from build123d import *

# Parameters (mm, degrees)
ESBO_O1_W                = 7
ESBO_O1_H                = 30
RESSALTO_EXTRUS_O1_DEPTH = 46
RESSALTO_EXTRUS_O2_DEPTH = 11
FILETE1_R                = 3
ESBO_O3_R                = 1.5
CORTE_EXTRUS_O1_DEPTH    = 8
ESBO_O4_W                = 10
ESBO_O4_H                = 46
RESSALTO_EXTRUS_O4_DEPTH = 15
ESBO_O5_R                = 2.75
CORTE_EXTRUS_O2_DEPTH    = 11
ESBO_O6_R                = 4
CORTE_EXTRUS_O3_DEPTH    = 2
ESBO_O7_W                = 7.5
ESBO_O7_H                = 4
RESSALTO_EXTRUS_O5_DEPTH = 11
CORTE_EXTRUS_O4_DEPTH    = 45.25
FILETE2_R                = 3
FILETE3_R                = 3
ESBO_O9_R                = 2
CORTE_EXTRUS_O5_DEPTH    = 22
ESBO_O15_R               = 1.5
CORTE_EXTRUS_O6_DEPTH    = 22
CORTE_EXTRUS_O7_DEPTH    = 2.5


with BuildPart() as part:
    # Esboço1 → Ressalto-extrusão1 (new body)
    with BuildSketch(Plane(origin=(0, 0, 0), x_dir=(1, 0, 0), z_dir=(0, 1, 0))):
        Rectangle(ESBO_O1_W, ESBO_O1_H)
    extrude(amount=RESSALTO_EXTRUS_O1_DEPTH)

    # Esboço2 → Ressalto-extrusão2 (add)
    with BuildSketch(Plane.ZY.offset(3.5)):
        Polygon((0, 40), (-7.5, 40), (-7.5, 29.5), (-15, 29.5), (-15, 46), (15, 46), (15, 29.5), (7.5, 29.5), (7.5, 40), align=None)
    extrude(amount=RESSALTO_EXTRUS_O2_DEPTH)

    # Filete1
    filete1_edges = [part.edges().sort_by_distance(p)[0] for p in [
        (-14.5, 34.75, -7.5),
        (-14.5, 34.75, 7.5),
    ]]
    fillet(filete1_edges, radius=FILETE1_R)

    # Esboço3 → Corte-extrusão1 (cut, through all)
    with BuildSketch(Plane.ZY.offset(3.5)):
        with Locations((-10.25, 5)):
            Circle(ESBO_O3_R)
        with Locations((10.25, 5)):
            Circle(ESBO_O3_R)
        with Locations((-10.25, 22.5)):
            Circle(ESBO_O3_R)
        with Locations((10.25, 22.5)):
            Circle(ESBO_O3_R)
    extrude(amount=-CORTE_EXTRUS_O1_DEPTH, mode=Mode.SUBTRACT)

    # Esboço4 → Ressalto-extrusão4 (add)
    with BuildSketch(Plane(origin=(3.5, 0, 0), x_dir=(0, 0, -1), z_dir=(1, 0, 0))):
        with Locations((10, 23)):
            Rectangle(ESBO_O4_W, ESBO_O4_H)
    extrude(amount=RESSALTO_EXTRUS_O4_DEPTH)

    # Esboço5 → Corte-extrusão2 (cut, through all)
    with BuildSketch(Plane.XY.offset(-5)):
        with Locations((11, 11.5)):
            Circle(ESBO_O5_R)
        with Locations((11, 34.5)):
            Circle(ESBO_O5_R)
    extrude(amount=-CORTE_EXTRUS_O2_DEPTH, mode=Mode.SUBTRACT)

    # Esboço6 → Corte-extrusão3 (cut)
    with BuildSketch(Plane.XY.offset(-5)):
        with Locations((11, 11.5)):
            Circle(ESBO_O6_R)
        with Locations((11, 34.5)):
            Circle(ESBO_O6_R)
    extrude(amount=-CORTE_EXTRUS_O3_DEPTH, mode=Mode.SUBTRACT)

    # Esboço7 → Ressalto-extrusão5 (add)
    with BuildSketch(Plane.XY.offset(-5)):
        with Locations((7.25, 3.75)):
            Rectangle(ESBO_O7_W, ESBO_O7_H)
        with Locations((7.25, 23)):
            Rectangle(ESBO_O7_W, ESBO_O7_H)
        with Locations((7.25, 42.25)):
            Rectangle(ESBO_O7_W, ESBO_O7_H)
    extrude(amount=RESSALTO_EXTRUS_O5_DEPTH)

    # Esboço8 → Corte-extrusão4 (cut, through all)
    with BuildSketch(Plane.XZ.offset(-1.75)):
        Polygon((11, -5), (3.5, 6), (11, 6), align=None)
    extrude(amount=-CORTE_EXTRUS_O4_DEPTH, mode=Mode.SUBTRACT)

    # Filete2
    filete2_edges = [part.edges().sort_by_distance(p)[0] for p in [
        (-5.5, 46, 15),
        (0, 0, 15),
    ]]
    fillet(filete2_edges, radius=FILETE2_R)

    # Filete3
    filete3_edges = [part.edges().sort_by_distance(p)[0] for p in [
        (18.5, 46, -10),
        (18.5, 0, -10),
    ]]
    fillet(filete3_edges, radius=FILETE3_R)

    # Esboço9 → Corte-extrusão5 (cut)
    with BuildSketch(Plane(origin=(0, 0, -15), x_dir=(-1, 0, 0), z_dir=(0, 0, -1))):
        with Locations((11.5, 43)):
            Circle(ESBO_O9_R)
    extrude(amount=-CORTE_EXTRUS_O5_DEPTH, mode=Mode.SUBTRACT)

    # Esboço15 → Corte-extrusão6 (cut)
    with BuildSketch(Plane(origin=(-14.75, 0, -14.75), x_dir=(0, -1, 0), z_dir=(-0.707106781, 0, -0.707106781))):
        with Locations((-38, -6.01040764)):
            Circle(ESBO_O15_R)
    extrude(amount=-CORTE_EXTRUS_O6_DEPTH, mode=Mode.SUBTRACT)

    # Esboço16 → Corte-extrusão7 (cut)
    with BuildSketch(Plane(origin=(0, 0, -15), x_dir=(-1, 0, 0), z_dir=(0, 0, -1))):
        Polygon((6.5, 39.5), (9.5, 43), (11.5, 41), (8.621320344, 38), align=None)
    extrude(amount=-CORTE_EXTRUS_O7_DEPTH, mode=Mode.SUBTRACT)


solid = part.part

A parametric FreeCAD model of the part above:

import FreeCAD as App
import Part
import Sketcher
from FreeCAD import Vector
Q = App.Units.Quantity


def edges_at(feature, points):
    """Names of the edges that pass closest to the given points."""
    edges = feature.Shape.Edges
    near = lambda p: min(range(len(edges)), key=lambda i: edges[i].distToShape(Part.Vertex(*p))[0])
    return sorted({f"Edge{near(p) + 1}" for p in points})

doc = App.newDocument("Part")
body = doc.addObject("PartDesign::Body", "Body")

# Sketch on XZ plane
sketch1 = doc.addObject("Sketcher::SketchObject", "Sketch")
body.addObject(sketch1)
sketch1.AttachmentSupport = (doc.XZ_Plane, [""])
sketch1.MapMode = "FlatFace"
sketch1.addGeometry(Part.LineSegment(Vector(-4, -15, 0), Vector(-4, 15, 0)), False)
sketch1.addGeometry(Part.LineSegment(Vector(-4, 15, 0), Vector(4, 15, 0)), False)
sketch1.addGeometry(Part.LineSegment(Vector(4, 15, 0), Vector(4, -15, 0)), False)
sketch1.addGeometry(Part.LineSegment(Vector(4, -15, 0), Vector(-4, -15, 0)), False)
sketch1.addConstraint(Sketcher.Constraint("Coincident", 0, 2, 1, 1))
sketch1.addConstraint(Sketcher.Constraint("Coincident", 1, 2, 2, 1))
sketch1.addConstraint(Sketcher.Constraint("Coincident", 2, 2, 3, 1))
sketch1.addConstraint(Sketcher.Constraint("Coincident", 3, 2, 0, 1))
sketch1.addConstraint(Sketcher.Constraint("Vertical", 0))
sketch1.addConstraint(Sketcher.Constraint("Horizontal", 1))
sketch1.addConstraint(Sketcher.Constraint("Vertical", 2))
sketch1.addConstraint(Sketcher.Constraint("Horizontal", 3))
sketch1.addConstraint(Sketcher.Constraint("Symmetric", 0, 2, 2, 2, -1, 1))
sketch1.addConstraint(Sketcher.Constraint("DistanceX", 1, 1, 1, 2, 7.0))
sketch1.addConstraint(Sketcher.Constraint("DistanceY", 0, 1, 0, 2, 30.0))
pad1 = doc.addObject("PartDesign::Pad", "Pad")
body.addObject(pad1)
pad1.Profile = sketch1
pad1.Length = 46
pad1.Reversed = True

# Sketch on YZ plane
sketch2 = doc.addObject("Sketcher::SketchObject", "Sketch001")
body.addObject(sketch2)
sketch2.AttachmentSupport = (doc.YZ_Plane, [""])
sketch2.MapMode = "FlatFace"
sketch2.AttachmentOffset = App.Placement(Vector(0, 0, -3.5), App.Rotation())
sketch2.addGeometry(Part.LineSegment(Vector(40, -8, 0), Vector(40, 8, 0)), False)
sketch2.addGeometry(Part.LineSegment(Vector(40, 8, 0), Vector(30, 8, 0)), False)
sketch2.addGeometry(Part.LineSegment(Vector(30, 8, 0), Vector(30, 15, 0)), False)
sketch2.addGeometry(Part.LineSegment(Vector(30, 15, 0), Vector(46, 15, 0)), False)
sketch2.addGeometry(Part.LineSegment(Vector(46, 15, 0), Vector(46, -15, 0)), False)
sketch2.addGeometry(Part.LineSegment(Vector(46, -15, 0), Vector(30, -15, 0)), False)
sketch2.addGeometry(Part.LineSegment(Vector(30, -15, 0), Vector(30, -8, 0)), False)
sketch2.addGeometry(Part.LineSegment(Vector(30, -8, 0), Vector(40, -8, 0)), False)
sketch2.addConstraint(Sketcher.Constraint("Coincident", 0, 2, 1, 1))
sketch2.addConstraint(Sketcher.Constraint("Coincident", 1, 2, 2, 1))
sketch2.addConstraint(Sketcher.Constraint("Coincident", 2, 2, 3, 1))
sketch2.addConstraint(Sketcher.Constraint("Coincident", 3, 2, 4, 1))
sketch2.addConstraint(Sketcher.Constraint("Coincident", 4, 2, 5, 1))
sketch2.addConstraint(Sketcher.Constraint("Coincident", 5, 2, 6, 1))
sketch2.addConstraint(Sketcher.Constraint("Coincident", 6, 2, 7, 1))
sketch2.addConstraint(Sketcher.Constraint("Coincident", 7, 2, 0, 1))
sketch2.addConstraint(Sketcher.Constraint("Vertical", 0))
sketch2.addConstraint(Sketcher.Constraint("Horizontal", 1))
sketch2.addConstraint(Sketcher.Constraint("Vertical", 2))
sketch2.addConstraint(Sketcher.Constraint("Horizontal", 3))
sketch2.addConstraint(Sketcher.Constraint("Vertical", 4))
sketch2.addConstraint(Sketcher.Constraint("Horizontal", 5))
sketch2.addConstraint(Sketcher.Constraint("Vertical", 6))
sketch2.addConstraint(Sketcher.Constraint("Horizontal", 7))
sketch2.addConstraint(Sketcher.Constraint("Symmetric", 2, 2, 5, 2, -1))
sketch2.addConstraint(Sketcher.Constraint("Equal", 2, 6))
sketch2.addConstraint(Sketcher.Constraint("DistanceY", 0, 1, 0, 2, 15.0))
sketch2.addConstraint(Sketcher.Constraint("DistanceY", 4, 2, 4, 1, 30.0))
sketch2.addConstraint(Sketcher.Constraint("DistanceX", 1, 2, 1, 1, 10.5))
sketch2.addConstraint(Sketcher.Constraint("DistanceX", 3, 1, 3, 2, 16.5))
sketch2.addConstraint(Sketcher.Constraint("DistanceX", -1, 1, 0, 2, 40.0))
pad2 = doc.addObject("PartDesign::Pad", "Pad001")
body.addObject(pad2)
pad2.Profile = sketch2
pad2.Length = 11
pad2.Reversed = True
doc.recompute()

fillet = doc.addObject("PartDesign::Fillet", "Fillet")
body.addObject(fillet)
fillet.Base = (pad2, edges_at(pad2, [(-14.5, 34.75, -7.5), (-14.5, 34.75, 7.5)]))
fillet.Radius = 3

# Sketch on YZ plane
sketch3 = doc.addObject("Sketcher::SketchObject", "Sketch002")
body.addObject(sketch3)
sketch3.AttachmentSupport = (doc.YZ_Plane, [""])
sketch3.MapMode = "FlatFace"
sketch3.AttachmentOffset = App.Placement(Vector(0, 0, -3.5), App.Rotation())
sketch3.addGeometry(Part.Circle(Vector(5, -10.2, 0), Vector(0, 0, 1), 1.5), False)
sketch3.addGeometry(Part.Circle(Vector(5, 10.2, 0), Vector(0, 0, 1), 1.5), False)
sketch3.addGeometry(Part.Circle(Vector(22.5, -10.2, 0), Vector(0, 0, 1), 1.5), False)
sketch3.addGeometry(Part.Circle(Vector(22.5, 10.2, 0), Vector(0, 0, 1), 1.5), False)
sketch3.addConstraint(Sketcher.Constraint("Equal", 0, 1))
sketch3.addConstraint(Sketcher.Constraint("Equal", 1, 2))
sketch3.addConstraint(Sketcher.Constraint("Equal", 2, 3))
sketch3.addConstraint(Sketcher.Constraint("Symmetric", 0, 3, 1, 3, -1))
sketch3.addConstraint(Sketcher.Constraint("Symmetric", 2, 3, 3, 3, -1))
sketch3.addConstraint(Sketcher.Constraint("Horizontal", 0, 3, 2, 3))
sketch3.addConstraint(Sketcher.Constraint("Diameter", 0, 3.0))
sketch3.addConstraint(Sketcher.Constraint("DistanceX", -1, 1, 0, 3, 5.0))
sketch3.addConstraint(Sketcher.Constraint("DistanceX", -1, 1, 2, 3, 22.5))
sketch3.addConstraint(Sketcher.Constraint("DistanceY", 0, 3, 1, 3, 20.5))
pocket1 = doc.addObject("PartDesign::Pocket", "Pocket")
body.addObject(pocket1)
pocket1.Profile = sketch3
pocket1.Type = "ThroughAll"
pocket1.Reversed = True

# Sketch on YZ plane
sketch4 = doc.addObject("Sketcher::SketchObject", "Sketch003")
body.addObject(sketch4)
sketch4.AttachmentSupport = (doc.YZ_Plane, [""])
sketch4.MapMode = "FlatFace"
sketch4.AttachmentOffset = App.Placement(Vector(0, 0, 3.5), App.Rotation())
sketch4.addGeometry(Part.LineSegment(Vector(46, -5, 0), Vector(0, -5, 0)), False)
sketch4.addGeometry(Part.LineSegment(Vector(0, -5, 0), Vector(0, -15, 0)), False)
sketch4.addGeometry(Part.LineSegment(Vector(0, -15, 0), Vector(46, -15, 0)), False)
sketch4.addGeometry(Part.LineSegment(Vector(46, -15, 0), Vector(46, -5, 0)), False)
sketch4.addConstraint(Sketcher.Constraint("Coincident", 0, 2, 1, 1))
sketch4.addConstraint(Sketcher.Constraint("Coincident", 1, 2, 2, 1))
sketch4.addConstraint(Sketcher.Constraint("Coincident", 2, 2, 3, 1))
sketch4.addConstraint(Sketcher.Constraint("Coincident", 3, 2, 0, 1))
sketch4.addConstraint(Sketcher.Constraint("Horizontal", 0))
sketch4.addConstraint(Sketcher.Constraint("Vertical", 1))
sketch4.addConstraint(Sketcher.Constraint("Horizontal", 2))
sketch4.addConstraint(Sketcher.Constraint("Vertical", 3))
sketch4.addConstraint(Sketcher.Constraint("PointOnObject", 0, 2, -2))
sketch4.addConstraint(Sketcher.Constraint("DistanceX", 0, 2, 0, 1, 46.0))
sketch4.addConstraint(Sketcher.Constraint("DistanceY", 1, 2, 1, 1, 10.0))
sketch4.addConstraint(Sketcher.Constraint("DistanceY", 0, 2, -1, 1, 5.0))
pad3 = doc.addObject("PartDesign::Pad", "Pad002")
body.addObject(pad3)
pad3.Profile = sketch4
pad3.Length = 15

# Sketch on XY plane
sketch5 = doc.addObject("Sketcher::SketchObject", "Sketch004")
body.addObject(sketch5)
sketch5.AttachmentSupport = (doc.XY_Plane, [""])
sketch5.MapMode = "FlatFace"
sketch5.AttachmentOffset = App.Placement(Vector(0, 0, -5), App.Rotation())
sketch5.addGeometry(Part.Circle(Vector(11, 11.5, 0), Vector(0, 0, 1), 2.8), False)
sketch5.addGeometry(Part.Circle(Vector(11, 34.5, 0), Vector(0, 0, 1), 2.8), False)
sketch5.addConstraint(Sketcher.Constraint("Equal", 0, 1))
sketch5.addConstraint(Sketcher.Constraint("Vertical", 0, 3, 1, 3))
sketch5.addConstraint(Sketcher.Constraint("Diameter", 0, 5.5))
sketch5.addConstraint(Sketcher.Constraint("DistanceX", -1, 1, 0, 3, 11.0))
sketch5.addConstraint(Sketcher.Constraint("DistanceY", 0, 3, 1, 3, 23.0))
sketch5.addConstraint(Sketcher.Constraint("DistanceY", -1, 1, 0, 3, 11.5))
pocket2 = doc.addObject("PartDesign::Pocket", "Pocket001")
body.addObject(pocket2)
pocket2.Profile = sketch5
pocket2.Type = "ThroughAll"

# Sketch on XY plane
sketch6 = doc.addObject("Sketcher::SketchObject", "Sketch005")
body.addObject(sketch6)
sketch6.AttachmentSupport = (doc.XY_Plane, [""])
sketch6.MapMode = "FlatFace"
sketch6.AttachmentOffset = App.Placement(Vector(0, 0, -5), App.Rotation())
sketch6.addGeometry(Part.Circle(Vector(11, 11.5, 0), Vector(0, 0, 1), 4), False)
sketch6.addGeometry(Part.Circle(Vector(11, 34.5, 0), Vector(0, 0, 1), 4), False)
sketch6.addConstraint(Sketcher.Constraint("Equal", 0, 1))
sketch6.addConstraint(Sketcher.Constraint("Vertical", 0, 3, 1, 3))
sketch6.addConstraint(Sketcher.Constraint("Diameter", 0, 8.0))
sketch6.addConstraint(Sketcher.Constraint("DistanceX", -1, 1, 0, 3, 11.0))
sketch6.addConstraint(Sketcher.Constraint("DistanceY", 0, 3, 1, 3, 23.0))
sketch6.addConstraint(Sketcher.Constraint("DistanceY", -1, 1, 0, 3, 11.5))
pocket3 = doc.addObject("PartDesign::Pocket", "Pocket002")
body.addObject(pocket3)
pocket3.Profile = sketch6
pocket3.Length = 2

# Sketch on XY plane
sketch7 = doc.addObject("Sketcher::SketchObject", "Sketch006")
body.addObject(sketch7)
sketch7.AttachmentSupport = (doc.XY_Plane, [""])
sketch7.MapMode = "FlatFace"
sketch7.AttachmentOffset = App.Placement(Vector(0, 0, -5), App.Rotation())
sketch7.addGeometry(Part.LineSegment(Vector(3.5, 5.8, 0), Vector(3.5, 1.8, 0)), False)
sketch7.addGeometry(Part.LineSegment(Vector(3.5, 1.8, 0), Vector(11, 1.8, 0)), False)
sketch7.addGeometry(Part.LineSegment(Vector(11, 1.8, 0), Vector(11, 5.8, 0)), False)
sketch7.addGeometry(Part.LineSegment(Vector(11, 5.8, 0), Vector(3.5, 5.8, 0)), False)
sketch7.addGeometry(Part.LineSegment(Vector(3.5, 25, 0), Vector(3.5, 21, 0)), False)
sketch7.addGeometry(Part.LineSegment(Vector(3.5, 21, 0), Vector(11, 21, 0)), False)
sketch7.addGeometry(Part.LineSegment(Vector(11, 21, 0), Vector(11, 25, 0)), False)
sketch7.addGeometry(Part.LineSegment(Vector(11, 25, 0), Vector(3.5, 25, 0)), False)
sketch7.addGeometry(Part.LineSegment(Vector(3.5, 44.2, 0), Vector(3.5, 40.2, 0)), False)
sketch7.addGeometry(Part.LineSegment(Vector(3.5, 40.2, 0), Vector(11, 40.2, 0)), False)
sketch7.addGeometry(Part.LineSegment(Vector(11, 40.2, 0), Vector(11, 44.2, 0)), False)
sketch7.addGeometry(Part.LineSegment(Vector(11, 44.2, 0), Vector(3.5, 44.2, 0)), False)
sketch7.addConstraint(Sketcher.Constraint("Coincident", 0, 2, 1, 1))
sketch7.addConstraint(Sketcher.Constraint("Coincident", 1, 2, 2, 1))
sketch7.addConstraint(Sketcher.Constraint("Coincident", 2, 2, 3, 1))
sketch7.addConstraint(Sketcher.Constraint("Coincident", 3, 2, 0, 1))
sketch7.addConstraint(Sketcher.Constraint("Coincident", 4, 2, 5, 1))
sketch7.addConstraint(Sketcher.Constraint("Coincident", 5, 2, 6, 1))
sketch7.addConstraint(Sketcher.Constraint("Coincident", 6, 2, 7, 1))
sketch7.addConstraint(Sketcher.Constraint("Coincident", 7, 2, 4, 1))
sketch7.addConstraint(Sketcher.Constraint("Coincident", 8, 2, 9, 1))
sketch7.addConstraint(Sketcher.Constraint("Coincident", 9, 2, 10, 1))
sketch7.addConstraint(Sketcher.Constraint("Coincident", 10, 2, 11, 1))
sketch7.addConstraint(Sketcher.Constraint("Coincident", 11, 2, 8, 1))
sketch7.addConstraint(Sketcher.Constraint("Vertical", 0))
sketch7.addConstraint(Sketcher.Constraint("Horizontal", 1))
sketch7.addConstraint(Sketcher.Constraint("Vertical", 2))
sketch7.addConstraint(Sketcher.Constraint("Horizontal", 3))
sketch7.addConstraint(Sketcher.Constraint("Vertical", 4))
sketch7.addConstraint(Sketcher.Constraint("Horizontal", 5))
sketch7.addConstraint(Sketcher.Constraint("Vertical", 6))
sketch7.addConstraint(Sketcher.Constraint("Horizontal", 7))
sketch7.addConstraint(Sketcher.Constraint("Vertical", 8))
sketch7.addConstraint(Sketcher.Constraint("Horizontal", 9))
sketch7.addConstraint(Sketcher.Constraint("Vertical", 10))
sketch7.addConstraint(Sketcher.Constraint("Horizontal", 11))
sketch7.addConstraint(Sketcher.Constraint("Vertical", 3, 2, 4, 2))
sketch7.addConstraint(Sketcher.Constraint("Vertical", 2, 2, 5, 2))
sketch7.addConstraint(Sketcher.Constraint("Vertical", 7, 2, 8, 2))
sketch7.addConstraint(Sketcher.Constraint("Vertical", 6, 2, 9, 2))
sketch7.addConstraint(Sketcher.Constraint("Equal", 2, 4))
sketch7.addConstraint(Sketcher.Constraint("Equal", 6, 8))
sketch7.addConstraint(Sketcher.Constraint("DistanceY", 0, 2, 0, 1, 4.0))
sketch7.addConstraint(Sketcher.Constraint("DistanceX", 1, 1, 1, 2, 7.5))
sketch7.addConstraint(Sketcher.Constraint("DistanceX", -1, 1, 1, 2, 11.0))
sketch7.addConstraint(Sketcher.Constraint("DistanceY", -1, 1, 4, 2, 21.0))
sketch7.addConstraint(Sketcher.Constraint("DistanceY", 3, 2, 8, 2, 34.5))
sketch7.addConstraint(Sketcher.Constraint("DistanceY", -1, 1, 0, 2, 1.75))
pad4 = doc.addObject("PartDesign::Pad", "Pad003")
body.addObject(pad4)
pad4.Profile = sketch7
pad4.Length = 11

# Sketch on XZ plane
sketch8 = doc.addObject("Sketcher::SketchObject", "Sketch007")
body.addObject(sketch8)
sketch8.AttachmentSupport = (doc.XZ_Plane, [""])
sketch8.MapMode = "FlatFace"
sketch8.AttachmentOffset = App.Placement(Vector(0, 0, -1.75), App.Rotation())
sketch8.addGeometry(Part.LineSegment(Vector(4, 6, 0), Vector(11, -5, 0)), False)
sketch8.addGeometry(Part.LineSegment(Vector(11, -5, 0), Vector(11, 6, 0)), False)
sketch8.addGeometry(Part.LineSegment(Vector(11, 6, 0), Vector(4, 6, 0)), False)
sketch8.addConstraint(Sketcher.Constraint("Coincident", 0, 2, 1, 1))
sketch8.addConstraint(Sketcher.Constraint("Coincident", 1, 2, 2, 1))
sketch8.addConstraint(Sketcher.Constraint("Coincident", 2, 2, 0, 1))
sketch8.addConstraint(Sketcher.Constraint("Vertical", 1))
sketch8.addConstraint(Sketcher.Constraint("Horizontal", 2))
sketch8.addConstraint(Sketcher.Constraint("DistanceY", 1, 1, 1, 2, 11.0))
sketch8.addConstraint(Sketcher.Constraint("DistanceX", 2, 2, 2, 1, 7.5))
sketch8.addConstraint(Sketcher.Constraint("DistanceX", -1, 1, 0, 2, 11.0))
sketch8.addConstraint(Sketcher.Constraint("DistanceY", 0, 2, -1, 1, 5.0))
pocket4 = doc.addObject("PartDesign::Pocket", "Pocket003")
body.addObject(pocket4)
pocket4.Profile = sketch8
pocket4.Type = "ThroughAll"
doc.recompute()

fillet2 = doc.addObject("PartDesign::Fillet", "Fillet001")
body.addObject(fillet2)
fillet2.Base = (pocket4, edges_at(pocket4, [(-5.5, 46, 15), (0, 0, 15)]))
fillet2.Radius = 3
doc.recompute()

fillet3 = doc.addObject("PartDesign::Fillet", "Fillet002")
body.addObject(fillet3)
fillet3.Base = (fillet2, edges_at(fillet2, [(18.5, 46, -10), (18.5, 0, -10)]))
fillet3.Radius = 3

# Sketch on XY plane
sketch9 = doc.addObject("Sketcher::SketchObject", "Sketch008")
body.addObject(sketch9)
sketch9.AttachmentSupport = (doc.XY_Plane, [""])
sketch9.MapMode = "FlatFace"
sketch9.AttachmentOffset = App.Placement(Vector(0, 0, -15), App.Rotation())
sketch9.addGeometry(Part.Circle(Vector(-11.5, 43, 0), Vector(0, 0, 1), 2), False)
sketch9.addConstraint(Sketcher.Constraint("Diameter", 0, 4.0))
sketch9.addConstraint(Sketcher.Constraint("DistanceY", -1, 1, 0, 3, 43.0))
sketch9.addConstraint(Sketcher.Constraint("DistanceX", 0, 3, -1, 1, 11.5))
pocket5 = doc.addObject("PartDesign::Pocket", "Pocket004")
body.addObject(pocket5)
pocket5.Profile = sketch9
pocket5.Length = 22
pocket5.Reversed = True

# Sketch on an angled plane
sketch10 = doc.addObject("Sketcher::SketchObject", "Sketch009")
body.addObject(sketch10)
sketch10.Placement = App.Placement(Vector(-14.75, 0, -14.75), App.Rotation(Vector(0, -1, 0), Vector(-0.707106781, 0, 0.707106781), Vector(-0.707106781, 0, -0.707106781), "ZXY"))
sketch10.addGeometry(Part.Circle(Vector(-38, -6, 0), Vector(0, 0, 1), 1.5), False)
sketch10.addConstraint(Sketcher.Constraint("Diameter", 0, 3.0))
sketch10.addConstraint(Sketcher.Constraint("DistanceX", 0, 3, -1, 1, 38.0))
sketch10.addConstraint(Sketcher.Constraint("DistanceY", 0, 3, -1, 1, 6.010408))
pocket6 = doc.addObject("PartDesign::Pocket", "Pocket005")
body.addObject(pocket6)
pocket6.Profile = sketch10
pocket6.Length = 22

# Sketch on XY plane
sketch11 = doc.addObject("Sketcher::SketchObject", "Sketch010")
body.addObject(sketch11)
sketch11.AttachmentSupport = (doc.XY_Plane, [""])
sketch11.MapMode = "FlatFace"
sketch11.AttachmentOffset = App.Placement(Vector(0, 0, -15), App.Rotation())
sketch11.addGeometry(Part.LineSegment(Vector(-9.5, 43, 0), Vector(-6.5, 39.5, 0)), False)
sketch11.addGeometry(Part.LineSegment(Vector(-6.5, 39.5, 0), Vector(-8.6, 38, 0)), False)
sketch11.addGeometry(Part.LineSegment(Vector(-8.6, 38, 0), Vector(-11.5, 41, 0)), False)
sketch11.addGeometry(Part.LineSegment(Vector(-11.5, 41, 0), Vector(-9.5, 43, 0)), False)
sketch11.addConstraint(Sketcher.Constraint("Coincident", 0, 2, 1, 1))
sketch11.addConstraint(Sketcher.Constraint("Coincident", 1, 2, 2, 1))
sketch11.addConstraint(Sketcher.Constraint("Coincident", 2, 2, 3, 1))
sketch11.addConstraint(Sketcher.Constraint("Coincident", 3, 2, 0, 1))
sketch11.addConstraint(Sketcher.Constraint("Angle", 3, Q("45 deg")))
sketch11.addConstraint(Sketcher.Constraint("DistanceY", -1, 1, 1, 2, 38.0))
sketch11.addConstraint(Sketcher.Constraint("DistanceY", -1, 1, 2, 2, 41.0))
sketch11.addConstraint(Sketcher.Constraint("DistanceY", -1, 1, 3, 2, 43.0))
sketch11.addConstraint(Sketcher.Constraint("DistanceX", 2, 2, 0, 2, 5.0))
sketch11.addConstraint(Sketcher.Constraint("DistanceX", 0, 2, -1, 1, 6.5))
sketch11.addConstraint(Sketcher.Constraint("DistanceY", -1, 1, 0, 2, 39.5))
sketch11.addConstraint(Sketcher.Constraint("Distance", 2, 4.157739))
pocket7 = doc.addObject("PartDesign::Pocket", "Pocket006")
body.addObject(pocket7)
pocket7.Profile = sketch11
pocket7.Length = 2.5
pocket7.Reversed = True

doc.recompute()
